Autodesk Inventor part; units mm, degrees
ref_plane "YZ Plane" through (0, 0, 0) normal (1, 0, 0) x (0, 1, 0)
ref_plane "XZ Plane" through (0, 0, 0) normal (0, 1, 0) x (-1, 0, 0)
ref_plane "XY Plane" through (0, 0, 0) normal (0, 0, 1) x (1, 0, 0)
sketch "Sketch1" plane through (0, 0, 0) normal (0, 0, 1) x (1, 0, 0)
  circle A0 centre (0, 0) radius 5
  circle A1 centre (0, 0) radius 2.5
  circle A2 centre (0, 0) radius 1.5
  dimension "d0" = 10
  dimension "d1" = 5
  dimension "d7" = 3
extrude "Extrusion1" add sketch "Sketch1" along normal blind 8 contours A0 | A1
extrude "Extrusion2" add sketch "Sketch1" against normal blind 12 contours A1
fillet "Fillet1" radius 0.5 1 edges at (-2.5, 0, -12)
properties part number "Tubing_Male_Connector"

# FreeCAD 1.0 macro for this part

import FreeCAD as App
import Part
import Sketcher

V = App.Vector
Q = App.Units.Quantity


def edges_at(feature, points):
    """Names of the edges that pass closest to the given points."""
    edges = feature.Shape.Edges
    near = lambda p: min(range(len(edges)), key=lambda i: edges[i].distToShape(Part.Vertex(*p))[0])
    return sorted({f"Edge{near(p) + 1}" for p in points})

doc = App.newDocument("Part")
body = doc.addObject("PartDesign::Body", "Body")

# Sketch on XY plane
sketch1 = body.newObject("Sketcher::SketchObject", "Sketch")
sketch1.AttachmentSupport = (doc.getObject("XY_Plane"), [""])
sketch1.MapMode = "FlatFace"
sketch1.addGeometry(Part.Circle(V(0, 0, 0), V(0, 0, 1), 5), False)
sketch1.addGeometry(Part.Circle(V(0, 0, 0), V(0, 0, 1), 1.5), False)
sketch1.addConstraint(Sketcher.Constraint("Coincident", 0, 3, -1, 1))
sketch1.addConstraint(Sketcher.Constraint("Coincident", 1, 3, -1, 1))
sketch1.addConstraint(Sketcher.Constraint("Diameter", 0, Q("10 mm")))
sketch1.addConstraint(Sketcher.Constraint("Diameter", 1, Q("3 mm")))
pad1 = body.newObject("PartDesign::Pad", "Pad")
pad1.Profile = sketch1
pad1.Length = 8

# Sketch on XY plane
sketch2 = body.newObject("Sketcher::SketchObject", "Sketch001")
sketch2.AttachmentSupport = (doc.getObject("XY_Plane"), [""])
sketch2.MapMode = "FlatFace"
sketch2.addGeometry(Part.Circle(V(0, 0, 0), V(0, 0, 1), 2.5), False)
sketch2.addGeometry(Part.Circle(V(0, 0, 0), V(0, 0, 1), 1.5), False)
sketch2.addConstraint(Sketcher.Constraint("Coincident", 0, 3, -1, 1))
sketch2.addConstraint(Sketcher.Constraint("Coincident", 1, 3, -1, 1))
sketch2.addConstraint(Sketcher.Constraint("Diameter", 0, Q("5 mm")))
sketch2.addConstraint(Sketcher.Constraint("Diameter", 1, Q("3 mm")))
pad2 = body.newObject("PartDesign::Pad", "Pad001")
pad2.Profile = sketch2
pad2.Length = 12
pad2.Reversed = True
doc.recompute()

fillet = body.newObject("PartDesign::Fillet", "Fillet")
fillet.Base = (pad2, edges_at(pad2, [(-2.5, 0, -12)]))
fillet.Radius = 0.5

doc.recompute()
